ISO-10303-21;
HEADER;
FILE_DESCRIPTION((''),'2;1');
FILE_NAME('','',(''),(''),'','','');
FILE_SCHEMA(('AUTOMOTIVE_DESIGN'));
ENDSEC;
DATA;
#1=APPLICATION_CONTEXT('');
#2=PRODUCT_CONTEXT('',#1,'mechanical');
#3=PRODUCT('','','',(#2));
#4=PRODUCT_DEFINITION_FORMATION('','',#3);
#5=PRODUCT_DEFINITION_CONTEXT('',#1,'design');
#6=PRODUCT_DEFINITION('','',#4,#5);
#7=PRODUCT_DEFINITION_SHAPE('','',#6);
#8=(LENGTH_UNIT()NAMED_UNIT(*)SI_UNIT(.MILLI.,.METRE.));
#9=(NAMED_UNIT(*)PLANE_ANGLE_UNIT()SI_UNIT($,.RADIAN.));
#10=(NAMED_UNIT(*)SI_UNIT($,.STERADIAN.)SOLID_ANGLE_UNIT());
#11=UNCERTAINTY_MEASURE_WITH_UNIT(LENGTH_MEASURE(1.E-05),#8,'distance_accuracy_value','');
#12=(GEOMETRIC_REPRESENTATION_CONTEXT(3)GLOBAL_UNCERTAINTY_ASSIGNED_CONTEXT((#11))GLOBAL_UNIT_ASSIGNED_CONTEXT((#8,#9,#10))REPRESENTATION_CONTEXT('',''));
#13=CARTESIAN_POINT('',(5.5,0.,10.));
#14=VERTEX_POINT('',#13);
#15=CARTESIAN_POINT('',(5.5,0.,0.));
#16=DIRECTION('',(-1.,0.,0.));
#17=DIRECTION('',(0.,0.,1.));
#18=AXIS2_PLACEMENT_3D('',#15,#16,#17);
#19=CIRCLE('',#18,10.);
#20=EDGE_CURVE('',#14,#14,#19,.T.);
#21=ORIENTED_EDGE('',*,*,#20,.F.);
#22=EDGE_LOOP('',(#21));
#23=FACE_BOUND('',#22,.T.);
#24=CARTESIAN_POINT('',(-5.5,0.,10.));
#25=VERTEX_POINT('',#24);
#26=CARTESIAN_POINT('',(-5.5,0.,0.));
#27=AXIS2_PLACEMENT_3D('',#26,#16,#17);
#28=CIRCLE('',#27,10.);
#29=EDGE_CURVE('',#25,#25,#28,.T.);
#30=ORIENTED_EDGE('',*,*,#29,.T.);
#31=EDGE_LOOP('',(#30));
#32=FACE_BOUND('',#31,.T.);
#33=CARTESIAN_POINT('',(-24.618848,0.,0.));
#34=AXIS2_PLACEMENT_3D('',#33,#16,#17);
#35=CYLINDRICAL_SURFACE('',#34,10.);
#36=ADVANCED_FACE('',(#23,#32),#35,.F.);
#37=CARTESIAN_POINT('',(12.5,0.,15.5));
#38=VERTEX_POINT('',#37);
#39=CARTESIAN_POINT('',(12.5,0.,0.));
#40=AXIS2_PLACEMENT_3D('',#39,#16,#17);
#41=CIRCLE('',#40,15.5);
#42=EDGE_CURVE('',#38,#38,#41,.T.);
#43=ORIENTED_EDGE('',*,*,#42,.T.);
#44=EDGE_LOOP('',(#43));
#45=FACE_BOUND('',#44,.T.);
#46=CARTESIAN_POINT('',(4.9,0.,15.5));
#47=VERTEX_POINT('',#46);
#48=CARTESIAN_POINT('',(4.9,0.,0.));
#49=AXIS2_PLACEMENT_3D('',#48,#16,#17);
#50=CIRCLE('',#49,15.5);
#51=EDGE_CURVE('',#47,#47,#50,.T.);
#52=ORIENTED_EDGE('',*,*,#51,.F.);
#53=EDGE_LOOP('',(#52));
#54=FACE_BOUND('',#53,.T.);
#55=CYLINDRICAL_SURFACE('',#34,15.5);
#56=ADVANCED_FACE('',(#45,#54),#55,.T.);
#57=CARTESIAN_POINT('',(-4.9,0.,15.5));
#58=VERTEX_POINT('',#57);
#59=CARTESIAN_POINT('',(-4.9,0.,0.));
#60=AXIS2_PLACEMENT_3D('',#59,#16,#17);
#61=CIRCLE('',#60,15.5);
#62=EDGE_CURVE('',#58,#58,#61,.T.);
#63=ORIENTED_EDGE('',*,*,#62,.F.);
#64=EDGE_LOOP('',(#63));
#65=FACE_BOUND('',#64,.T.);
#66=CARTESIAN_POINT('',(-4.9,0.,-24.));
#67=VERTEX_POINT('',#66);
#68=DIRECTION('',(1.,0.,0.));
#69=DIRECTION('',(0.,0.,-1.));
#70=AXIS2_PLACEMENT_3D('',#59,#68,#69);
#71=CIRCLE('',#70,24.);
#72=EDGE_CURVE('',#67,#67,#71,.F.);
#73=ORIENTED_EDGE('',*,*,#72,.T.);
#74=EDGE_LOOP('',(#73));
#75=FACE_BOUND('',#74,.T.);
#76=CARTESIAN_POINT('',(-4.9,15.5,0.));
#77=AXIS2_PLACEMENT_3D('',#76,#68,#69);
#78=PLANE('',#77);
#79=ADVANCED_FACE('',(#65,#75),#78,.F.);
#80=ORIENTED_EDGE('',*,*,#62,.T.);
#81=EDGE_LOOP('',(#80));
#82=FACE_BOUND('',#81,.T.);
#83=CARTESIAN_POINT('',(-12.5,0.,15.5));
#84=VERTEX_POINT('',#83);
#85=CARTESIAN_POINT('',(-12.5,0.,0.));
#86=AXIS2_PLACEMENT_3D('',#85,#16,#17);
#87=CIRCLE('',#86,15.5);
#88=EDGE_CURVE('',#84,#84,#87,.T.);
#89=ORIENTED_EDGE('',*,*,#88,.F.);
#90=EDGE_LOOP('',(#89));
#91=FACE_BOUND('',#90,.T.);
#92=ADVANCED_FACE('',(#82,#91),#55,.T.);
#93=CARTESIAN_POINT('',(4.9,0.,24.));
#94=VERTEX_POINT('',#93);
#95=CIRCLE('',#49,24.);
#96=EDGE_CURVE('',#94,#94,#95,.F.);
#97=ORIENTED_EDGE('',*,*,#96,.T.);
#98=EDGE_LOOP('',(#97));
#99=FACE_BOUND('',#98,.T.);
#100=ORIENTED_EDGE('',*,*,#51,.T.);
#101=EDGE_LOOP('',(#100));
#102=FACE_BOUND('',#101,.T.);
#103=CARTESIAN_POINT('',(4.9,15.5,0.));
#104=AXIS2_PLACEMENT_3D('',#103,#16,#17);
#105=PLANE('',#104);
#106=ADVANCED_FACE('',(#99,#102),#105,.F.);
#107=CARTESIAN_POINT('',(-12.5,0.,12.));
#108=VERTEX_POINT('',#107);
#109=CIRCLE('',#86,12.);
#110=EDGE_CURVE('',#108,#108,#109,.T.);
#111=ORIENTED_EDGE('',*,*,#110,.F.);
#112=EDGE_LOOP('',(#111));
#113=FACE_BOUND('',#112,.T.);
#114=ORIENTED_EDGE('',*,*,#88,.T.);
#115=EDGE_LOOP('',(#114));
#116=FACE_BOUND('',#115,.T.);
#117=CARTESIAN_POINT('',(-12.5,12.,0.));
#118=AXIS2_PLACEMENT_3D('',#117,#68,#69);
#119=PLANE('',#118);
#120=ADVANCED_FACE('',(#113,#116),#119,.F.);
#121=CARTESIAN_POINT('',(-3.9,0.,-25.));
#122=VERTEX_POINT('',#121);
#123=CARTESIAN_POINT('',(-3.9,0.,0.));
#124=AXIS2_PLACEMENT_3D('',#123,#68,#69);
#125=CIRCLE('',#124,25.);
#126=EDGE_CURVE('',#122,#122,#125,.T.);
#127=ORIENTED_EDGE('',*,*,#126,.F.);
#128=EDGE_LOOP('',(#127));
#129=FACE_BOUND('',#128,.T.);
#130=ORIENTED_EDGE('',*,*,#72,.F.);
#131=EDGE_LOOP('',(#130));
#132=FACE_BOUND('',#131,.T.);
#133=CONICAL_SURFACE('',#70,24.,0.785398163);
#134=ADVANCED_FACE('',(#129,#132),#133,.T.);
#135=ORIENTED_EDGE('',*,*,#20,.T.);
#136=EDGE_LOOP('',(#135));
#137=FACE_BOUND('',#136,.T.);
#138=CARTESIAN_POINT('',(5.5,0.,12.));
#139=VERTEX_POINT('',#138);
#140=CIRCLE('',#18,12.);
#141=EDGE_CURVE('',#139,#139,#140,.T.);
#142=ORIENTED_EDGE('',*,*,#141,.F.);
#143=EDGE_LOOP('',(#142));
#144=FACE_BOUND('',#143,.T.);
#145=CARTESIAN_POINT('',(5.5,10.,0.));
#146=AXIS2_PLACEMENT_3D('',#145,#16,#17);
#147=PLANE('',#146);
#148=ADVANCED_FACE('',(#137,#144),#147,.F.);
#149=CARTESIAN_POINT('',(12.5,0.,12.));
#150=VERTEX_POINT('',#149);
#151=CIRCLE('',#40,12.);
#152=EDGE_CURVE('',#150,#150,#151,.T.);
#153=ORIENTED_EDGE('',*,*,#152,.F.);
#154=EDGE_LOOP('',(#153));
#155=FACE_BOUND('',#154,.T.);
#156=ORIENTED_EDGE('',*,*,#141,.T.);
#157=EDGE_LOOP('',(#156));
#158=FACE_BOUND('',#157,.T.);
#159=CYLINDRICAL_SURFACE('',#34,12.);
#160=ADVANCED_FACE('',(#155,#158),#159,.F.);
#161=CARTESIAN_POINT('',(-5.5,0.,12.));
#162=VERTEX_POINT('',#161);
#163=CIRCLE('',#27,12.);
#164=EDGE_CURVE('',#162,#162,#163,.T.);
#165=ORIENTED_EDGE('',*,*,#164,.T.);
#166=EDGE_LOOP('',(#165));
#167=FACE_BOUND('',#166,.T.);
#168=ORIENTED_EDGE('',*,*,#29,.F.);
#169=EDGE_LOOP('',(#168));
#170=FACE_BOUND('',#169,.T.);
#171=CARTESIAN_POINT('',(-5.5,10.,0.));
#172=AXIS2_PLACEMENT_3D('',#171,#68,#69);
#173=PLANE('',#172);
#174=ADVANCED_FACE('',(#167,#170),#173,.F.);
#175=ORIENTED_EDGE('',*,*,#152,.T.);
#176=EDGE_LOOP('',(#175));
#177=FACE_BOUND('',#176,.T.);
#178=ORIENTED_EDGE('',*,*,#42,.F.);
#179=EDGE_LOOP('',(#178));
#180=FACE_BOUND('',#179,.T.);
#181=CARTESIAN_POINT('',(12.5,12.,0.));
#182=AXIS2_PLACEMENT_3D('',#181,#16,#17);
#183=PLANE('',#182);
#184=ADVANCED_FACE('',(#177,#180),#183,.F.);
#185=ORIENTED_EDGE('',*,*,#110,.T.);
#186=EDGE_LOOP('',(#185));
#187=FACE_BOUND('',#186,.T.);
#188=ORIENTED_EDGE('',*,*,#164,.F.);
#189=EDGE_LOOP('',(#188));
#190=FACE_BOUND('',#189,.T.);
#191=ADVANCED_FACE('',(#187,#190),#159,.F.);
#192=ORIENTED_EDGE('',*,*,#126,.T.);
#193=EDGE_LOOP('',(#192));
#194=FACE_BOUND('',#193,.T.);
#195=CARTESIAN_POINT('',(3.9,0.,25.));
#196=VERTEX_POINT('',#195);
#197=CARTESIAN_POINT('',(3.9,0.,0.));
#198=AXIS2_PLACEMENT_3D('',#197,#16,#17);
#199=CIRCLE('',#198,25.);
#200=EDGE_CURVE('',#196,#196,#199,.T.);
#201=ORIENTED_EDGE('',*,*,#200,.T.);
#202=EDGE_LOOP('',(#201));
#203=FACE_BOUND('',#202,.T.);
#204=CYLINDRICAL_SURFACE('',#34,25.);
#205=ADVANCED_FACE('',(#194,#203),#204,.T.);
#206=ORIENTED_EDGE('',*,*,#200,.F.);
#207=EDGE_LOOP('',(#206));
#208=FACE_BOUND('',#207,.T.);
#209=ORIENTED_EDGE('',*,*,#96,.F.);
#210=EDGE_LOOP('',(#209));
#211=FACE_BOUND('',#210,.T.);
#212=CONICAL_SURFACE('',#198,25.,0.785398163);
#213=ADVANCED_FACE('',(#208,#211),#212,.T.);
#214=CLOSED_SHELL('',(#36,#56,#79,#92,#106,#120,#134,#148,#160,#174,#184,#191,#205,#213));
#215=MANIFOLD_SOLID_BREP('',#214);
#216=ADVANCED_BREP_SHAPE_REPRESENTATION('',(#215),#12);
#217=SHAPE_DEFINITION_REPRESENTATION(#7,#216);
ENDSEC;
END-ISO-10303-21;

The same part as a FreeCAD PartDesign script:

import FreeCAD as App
import Part
import Sketcher

V = App.Vector


def edges_at(feature, points):
    """Names of the edges that pass closest to the given points."""
    edges = feature.Shape.Edges
    near = lambda p: min(range(len(edges)), key=lambda i: edges[i].distToShape(Part.Vertex(*p))[0])
    return sorted({f"Edge{near(p) + 1}" for p in points})


def add_polygon(sketch, points):
    """Adds a closed chain of lines whose ends are joined by coincident constraints."""
    first, n = sketch.GeometryCount, len(points)
    for a, b in zip(points, points[1:] + points[:1]):
        sketch.addGeometry(Part.LineSegment(App.Vector(*a, 0), App.Vector(*b, 0)), False)
    for i in range(n):
        sketch.addConstraint(Sketcher.Constraint("Coincident", first + i, 2, first + (i + 1) % n, 1))

doc = App.newDocument("Part")
body = doc.addObject("PartDesign::Body", "Body")

sketch1 = doc.addObject("Sketcher::SketchObject", "Sketch")
body.addObject(sketch1)
sketch1.AttachmentSupport = (doc.XY_Plane, [""])
sketch1.MapMode = "FlatFace"
add_polygon(sketch1, [(-5.5, 10), (5.5, 10), (5.5, 12), (12.5, 12), (12.5, 15.5), (4.9, 15.5), (4.9, 25), (-4.9, 25), (-4.9, 15.5), (-12.5, 15.5), (-12.5, 12), (-5.5, 12)])
sketch1.addConstraint([
    Sketcher.Constraint("Horizontal", 0),
    Sketcher.Constraint("Vertical", 1),
    Sketcher.Constraint("Horizontal", 2),
    Sketcher.Constraint("Vertical", 3),
    Sketcher.Constraint("Horizontal", 4),
    Sketcher.Constraint("Vertical", 5),
    Sketcher.Constraint("Horizontal", 6),
    Sketcher.Constraint("Vertical", 7),
    Sketcher.Constraint("Horizontal", 8),
    Sketcher.Constraint("Vertical", 9),
    Sketcher.Constraint("Horizontal", 10),
    Sketcher.Constraint("Vertical", 11),
    Sketcher.Constraint("Symmetric", 4, 2, 7, 2, -2),
    Sketcher.Constraint("Symmetric", 2, 2, 9, 2, -2),
    Sketcher.Constraint("Equal", 2, 10),
    Sketcher.Constraint("DistanceX", 0, 1, 0, 2, 11.0),
    Sketcher.Constraint("DistanceX", 2, 1, 2, 2, 7.0),
    Sketcher.Constraint("DistanceY", 1, 1, 1, 2, 2.0),
    Sketcher.Constraint("DistanceX", 4, 2, 4, 1, 7.6),
    Sketcher.Constraint("DistanceY", 3, 1, 3, 2, 3.5),
    Sketcher.Constraint("DistanceY", 5, 1, 5, 2, 9.5),
    Sketcher.Constraint("DistanceY", -1, 1, 0, 2, 10.0),
])
revolution = doc.addObject("PartDesign::Revolution", "Revolution")
body.addObject(revolution)
revolution.Profile = sketch1
revolution.ReferenceAxis = (sketch1, ["H_Axis"])
revolution.Angle = 360
doc.recompute()

chamfer = doc.addObject("PartDesign::Chamfer", "Chamfer")
body.addObject(chamfer)
chamfer.Base = (revolution, edges_at(revolution, [(-4.9, 0, -25), (4.9, 0, -25)]))
chamfer.Size = 1

doc.recompute()
